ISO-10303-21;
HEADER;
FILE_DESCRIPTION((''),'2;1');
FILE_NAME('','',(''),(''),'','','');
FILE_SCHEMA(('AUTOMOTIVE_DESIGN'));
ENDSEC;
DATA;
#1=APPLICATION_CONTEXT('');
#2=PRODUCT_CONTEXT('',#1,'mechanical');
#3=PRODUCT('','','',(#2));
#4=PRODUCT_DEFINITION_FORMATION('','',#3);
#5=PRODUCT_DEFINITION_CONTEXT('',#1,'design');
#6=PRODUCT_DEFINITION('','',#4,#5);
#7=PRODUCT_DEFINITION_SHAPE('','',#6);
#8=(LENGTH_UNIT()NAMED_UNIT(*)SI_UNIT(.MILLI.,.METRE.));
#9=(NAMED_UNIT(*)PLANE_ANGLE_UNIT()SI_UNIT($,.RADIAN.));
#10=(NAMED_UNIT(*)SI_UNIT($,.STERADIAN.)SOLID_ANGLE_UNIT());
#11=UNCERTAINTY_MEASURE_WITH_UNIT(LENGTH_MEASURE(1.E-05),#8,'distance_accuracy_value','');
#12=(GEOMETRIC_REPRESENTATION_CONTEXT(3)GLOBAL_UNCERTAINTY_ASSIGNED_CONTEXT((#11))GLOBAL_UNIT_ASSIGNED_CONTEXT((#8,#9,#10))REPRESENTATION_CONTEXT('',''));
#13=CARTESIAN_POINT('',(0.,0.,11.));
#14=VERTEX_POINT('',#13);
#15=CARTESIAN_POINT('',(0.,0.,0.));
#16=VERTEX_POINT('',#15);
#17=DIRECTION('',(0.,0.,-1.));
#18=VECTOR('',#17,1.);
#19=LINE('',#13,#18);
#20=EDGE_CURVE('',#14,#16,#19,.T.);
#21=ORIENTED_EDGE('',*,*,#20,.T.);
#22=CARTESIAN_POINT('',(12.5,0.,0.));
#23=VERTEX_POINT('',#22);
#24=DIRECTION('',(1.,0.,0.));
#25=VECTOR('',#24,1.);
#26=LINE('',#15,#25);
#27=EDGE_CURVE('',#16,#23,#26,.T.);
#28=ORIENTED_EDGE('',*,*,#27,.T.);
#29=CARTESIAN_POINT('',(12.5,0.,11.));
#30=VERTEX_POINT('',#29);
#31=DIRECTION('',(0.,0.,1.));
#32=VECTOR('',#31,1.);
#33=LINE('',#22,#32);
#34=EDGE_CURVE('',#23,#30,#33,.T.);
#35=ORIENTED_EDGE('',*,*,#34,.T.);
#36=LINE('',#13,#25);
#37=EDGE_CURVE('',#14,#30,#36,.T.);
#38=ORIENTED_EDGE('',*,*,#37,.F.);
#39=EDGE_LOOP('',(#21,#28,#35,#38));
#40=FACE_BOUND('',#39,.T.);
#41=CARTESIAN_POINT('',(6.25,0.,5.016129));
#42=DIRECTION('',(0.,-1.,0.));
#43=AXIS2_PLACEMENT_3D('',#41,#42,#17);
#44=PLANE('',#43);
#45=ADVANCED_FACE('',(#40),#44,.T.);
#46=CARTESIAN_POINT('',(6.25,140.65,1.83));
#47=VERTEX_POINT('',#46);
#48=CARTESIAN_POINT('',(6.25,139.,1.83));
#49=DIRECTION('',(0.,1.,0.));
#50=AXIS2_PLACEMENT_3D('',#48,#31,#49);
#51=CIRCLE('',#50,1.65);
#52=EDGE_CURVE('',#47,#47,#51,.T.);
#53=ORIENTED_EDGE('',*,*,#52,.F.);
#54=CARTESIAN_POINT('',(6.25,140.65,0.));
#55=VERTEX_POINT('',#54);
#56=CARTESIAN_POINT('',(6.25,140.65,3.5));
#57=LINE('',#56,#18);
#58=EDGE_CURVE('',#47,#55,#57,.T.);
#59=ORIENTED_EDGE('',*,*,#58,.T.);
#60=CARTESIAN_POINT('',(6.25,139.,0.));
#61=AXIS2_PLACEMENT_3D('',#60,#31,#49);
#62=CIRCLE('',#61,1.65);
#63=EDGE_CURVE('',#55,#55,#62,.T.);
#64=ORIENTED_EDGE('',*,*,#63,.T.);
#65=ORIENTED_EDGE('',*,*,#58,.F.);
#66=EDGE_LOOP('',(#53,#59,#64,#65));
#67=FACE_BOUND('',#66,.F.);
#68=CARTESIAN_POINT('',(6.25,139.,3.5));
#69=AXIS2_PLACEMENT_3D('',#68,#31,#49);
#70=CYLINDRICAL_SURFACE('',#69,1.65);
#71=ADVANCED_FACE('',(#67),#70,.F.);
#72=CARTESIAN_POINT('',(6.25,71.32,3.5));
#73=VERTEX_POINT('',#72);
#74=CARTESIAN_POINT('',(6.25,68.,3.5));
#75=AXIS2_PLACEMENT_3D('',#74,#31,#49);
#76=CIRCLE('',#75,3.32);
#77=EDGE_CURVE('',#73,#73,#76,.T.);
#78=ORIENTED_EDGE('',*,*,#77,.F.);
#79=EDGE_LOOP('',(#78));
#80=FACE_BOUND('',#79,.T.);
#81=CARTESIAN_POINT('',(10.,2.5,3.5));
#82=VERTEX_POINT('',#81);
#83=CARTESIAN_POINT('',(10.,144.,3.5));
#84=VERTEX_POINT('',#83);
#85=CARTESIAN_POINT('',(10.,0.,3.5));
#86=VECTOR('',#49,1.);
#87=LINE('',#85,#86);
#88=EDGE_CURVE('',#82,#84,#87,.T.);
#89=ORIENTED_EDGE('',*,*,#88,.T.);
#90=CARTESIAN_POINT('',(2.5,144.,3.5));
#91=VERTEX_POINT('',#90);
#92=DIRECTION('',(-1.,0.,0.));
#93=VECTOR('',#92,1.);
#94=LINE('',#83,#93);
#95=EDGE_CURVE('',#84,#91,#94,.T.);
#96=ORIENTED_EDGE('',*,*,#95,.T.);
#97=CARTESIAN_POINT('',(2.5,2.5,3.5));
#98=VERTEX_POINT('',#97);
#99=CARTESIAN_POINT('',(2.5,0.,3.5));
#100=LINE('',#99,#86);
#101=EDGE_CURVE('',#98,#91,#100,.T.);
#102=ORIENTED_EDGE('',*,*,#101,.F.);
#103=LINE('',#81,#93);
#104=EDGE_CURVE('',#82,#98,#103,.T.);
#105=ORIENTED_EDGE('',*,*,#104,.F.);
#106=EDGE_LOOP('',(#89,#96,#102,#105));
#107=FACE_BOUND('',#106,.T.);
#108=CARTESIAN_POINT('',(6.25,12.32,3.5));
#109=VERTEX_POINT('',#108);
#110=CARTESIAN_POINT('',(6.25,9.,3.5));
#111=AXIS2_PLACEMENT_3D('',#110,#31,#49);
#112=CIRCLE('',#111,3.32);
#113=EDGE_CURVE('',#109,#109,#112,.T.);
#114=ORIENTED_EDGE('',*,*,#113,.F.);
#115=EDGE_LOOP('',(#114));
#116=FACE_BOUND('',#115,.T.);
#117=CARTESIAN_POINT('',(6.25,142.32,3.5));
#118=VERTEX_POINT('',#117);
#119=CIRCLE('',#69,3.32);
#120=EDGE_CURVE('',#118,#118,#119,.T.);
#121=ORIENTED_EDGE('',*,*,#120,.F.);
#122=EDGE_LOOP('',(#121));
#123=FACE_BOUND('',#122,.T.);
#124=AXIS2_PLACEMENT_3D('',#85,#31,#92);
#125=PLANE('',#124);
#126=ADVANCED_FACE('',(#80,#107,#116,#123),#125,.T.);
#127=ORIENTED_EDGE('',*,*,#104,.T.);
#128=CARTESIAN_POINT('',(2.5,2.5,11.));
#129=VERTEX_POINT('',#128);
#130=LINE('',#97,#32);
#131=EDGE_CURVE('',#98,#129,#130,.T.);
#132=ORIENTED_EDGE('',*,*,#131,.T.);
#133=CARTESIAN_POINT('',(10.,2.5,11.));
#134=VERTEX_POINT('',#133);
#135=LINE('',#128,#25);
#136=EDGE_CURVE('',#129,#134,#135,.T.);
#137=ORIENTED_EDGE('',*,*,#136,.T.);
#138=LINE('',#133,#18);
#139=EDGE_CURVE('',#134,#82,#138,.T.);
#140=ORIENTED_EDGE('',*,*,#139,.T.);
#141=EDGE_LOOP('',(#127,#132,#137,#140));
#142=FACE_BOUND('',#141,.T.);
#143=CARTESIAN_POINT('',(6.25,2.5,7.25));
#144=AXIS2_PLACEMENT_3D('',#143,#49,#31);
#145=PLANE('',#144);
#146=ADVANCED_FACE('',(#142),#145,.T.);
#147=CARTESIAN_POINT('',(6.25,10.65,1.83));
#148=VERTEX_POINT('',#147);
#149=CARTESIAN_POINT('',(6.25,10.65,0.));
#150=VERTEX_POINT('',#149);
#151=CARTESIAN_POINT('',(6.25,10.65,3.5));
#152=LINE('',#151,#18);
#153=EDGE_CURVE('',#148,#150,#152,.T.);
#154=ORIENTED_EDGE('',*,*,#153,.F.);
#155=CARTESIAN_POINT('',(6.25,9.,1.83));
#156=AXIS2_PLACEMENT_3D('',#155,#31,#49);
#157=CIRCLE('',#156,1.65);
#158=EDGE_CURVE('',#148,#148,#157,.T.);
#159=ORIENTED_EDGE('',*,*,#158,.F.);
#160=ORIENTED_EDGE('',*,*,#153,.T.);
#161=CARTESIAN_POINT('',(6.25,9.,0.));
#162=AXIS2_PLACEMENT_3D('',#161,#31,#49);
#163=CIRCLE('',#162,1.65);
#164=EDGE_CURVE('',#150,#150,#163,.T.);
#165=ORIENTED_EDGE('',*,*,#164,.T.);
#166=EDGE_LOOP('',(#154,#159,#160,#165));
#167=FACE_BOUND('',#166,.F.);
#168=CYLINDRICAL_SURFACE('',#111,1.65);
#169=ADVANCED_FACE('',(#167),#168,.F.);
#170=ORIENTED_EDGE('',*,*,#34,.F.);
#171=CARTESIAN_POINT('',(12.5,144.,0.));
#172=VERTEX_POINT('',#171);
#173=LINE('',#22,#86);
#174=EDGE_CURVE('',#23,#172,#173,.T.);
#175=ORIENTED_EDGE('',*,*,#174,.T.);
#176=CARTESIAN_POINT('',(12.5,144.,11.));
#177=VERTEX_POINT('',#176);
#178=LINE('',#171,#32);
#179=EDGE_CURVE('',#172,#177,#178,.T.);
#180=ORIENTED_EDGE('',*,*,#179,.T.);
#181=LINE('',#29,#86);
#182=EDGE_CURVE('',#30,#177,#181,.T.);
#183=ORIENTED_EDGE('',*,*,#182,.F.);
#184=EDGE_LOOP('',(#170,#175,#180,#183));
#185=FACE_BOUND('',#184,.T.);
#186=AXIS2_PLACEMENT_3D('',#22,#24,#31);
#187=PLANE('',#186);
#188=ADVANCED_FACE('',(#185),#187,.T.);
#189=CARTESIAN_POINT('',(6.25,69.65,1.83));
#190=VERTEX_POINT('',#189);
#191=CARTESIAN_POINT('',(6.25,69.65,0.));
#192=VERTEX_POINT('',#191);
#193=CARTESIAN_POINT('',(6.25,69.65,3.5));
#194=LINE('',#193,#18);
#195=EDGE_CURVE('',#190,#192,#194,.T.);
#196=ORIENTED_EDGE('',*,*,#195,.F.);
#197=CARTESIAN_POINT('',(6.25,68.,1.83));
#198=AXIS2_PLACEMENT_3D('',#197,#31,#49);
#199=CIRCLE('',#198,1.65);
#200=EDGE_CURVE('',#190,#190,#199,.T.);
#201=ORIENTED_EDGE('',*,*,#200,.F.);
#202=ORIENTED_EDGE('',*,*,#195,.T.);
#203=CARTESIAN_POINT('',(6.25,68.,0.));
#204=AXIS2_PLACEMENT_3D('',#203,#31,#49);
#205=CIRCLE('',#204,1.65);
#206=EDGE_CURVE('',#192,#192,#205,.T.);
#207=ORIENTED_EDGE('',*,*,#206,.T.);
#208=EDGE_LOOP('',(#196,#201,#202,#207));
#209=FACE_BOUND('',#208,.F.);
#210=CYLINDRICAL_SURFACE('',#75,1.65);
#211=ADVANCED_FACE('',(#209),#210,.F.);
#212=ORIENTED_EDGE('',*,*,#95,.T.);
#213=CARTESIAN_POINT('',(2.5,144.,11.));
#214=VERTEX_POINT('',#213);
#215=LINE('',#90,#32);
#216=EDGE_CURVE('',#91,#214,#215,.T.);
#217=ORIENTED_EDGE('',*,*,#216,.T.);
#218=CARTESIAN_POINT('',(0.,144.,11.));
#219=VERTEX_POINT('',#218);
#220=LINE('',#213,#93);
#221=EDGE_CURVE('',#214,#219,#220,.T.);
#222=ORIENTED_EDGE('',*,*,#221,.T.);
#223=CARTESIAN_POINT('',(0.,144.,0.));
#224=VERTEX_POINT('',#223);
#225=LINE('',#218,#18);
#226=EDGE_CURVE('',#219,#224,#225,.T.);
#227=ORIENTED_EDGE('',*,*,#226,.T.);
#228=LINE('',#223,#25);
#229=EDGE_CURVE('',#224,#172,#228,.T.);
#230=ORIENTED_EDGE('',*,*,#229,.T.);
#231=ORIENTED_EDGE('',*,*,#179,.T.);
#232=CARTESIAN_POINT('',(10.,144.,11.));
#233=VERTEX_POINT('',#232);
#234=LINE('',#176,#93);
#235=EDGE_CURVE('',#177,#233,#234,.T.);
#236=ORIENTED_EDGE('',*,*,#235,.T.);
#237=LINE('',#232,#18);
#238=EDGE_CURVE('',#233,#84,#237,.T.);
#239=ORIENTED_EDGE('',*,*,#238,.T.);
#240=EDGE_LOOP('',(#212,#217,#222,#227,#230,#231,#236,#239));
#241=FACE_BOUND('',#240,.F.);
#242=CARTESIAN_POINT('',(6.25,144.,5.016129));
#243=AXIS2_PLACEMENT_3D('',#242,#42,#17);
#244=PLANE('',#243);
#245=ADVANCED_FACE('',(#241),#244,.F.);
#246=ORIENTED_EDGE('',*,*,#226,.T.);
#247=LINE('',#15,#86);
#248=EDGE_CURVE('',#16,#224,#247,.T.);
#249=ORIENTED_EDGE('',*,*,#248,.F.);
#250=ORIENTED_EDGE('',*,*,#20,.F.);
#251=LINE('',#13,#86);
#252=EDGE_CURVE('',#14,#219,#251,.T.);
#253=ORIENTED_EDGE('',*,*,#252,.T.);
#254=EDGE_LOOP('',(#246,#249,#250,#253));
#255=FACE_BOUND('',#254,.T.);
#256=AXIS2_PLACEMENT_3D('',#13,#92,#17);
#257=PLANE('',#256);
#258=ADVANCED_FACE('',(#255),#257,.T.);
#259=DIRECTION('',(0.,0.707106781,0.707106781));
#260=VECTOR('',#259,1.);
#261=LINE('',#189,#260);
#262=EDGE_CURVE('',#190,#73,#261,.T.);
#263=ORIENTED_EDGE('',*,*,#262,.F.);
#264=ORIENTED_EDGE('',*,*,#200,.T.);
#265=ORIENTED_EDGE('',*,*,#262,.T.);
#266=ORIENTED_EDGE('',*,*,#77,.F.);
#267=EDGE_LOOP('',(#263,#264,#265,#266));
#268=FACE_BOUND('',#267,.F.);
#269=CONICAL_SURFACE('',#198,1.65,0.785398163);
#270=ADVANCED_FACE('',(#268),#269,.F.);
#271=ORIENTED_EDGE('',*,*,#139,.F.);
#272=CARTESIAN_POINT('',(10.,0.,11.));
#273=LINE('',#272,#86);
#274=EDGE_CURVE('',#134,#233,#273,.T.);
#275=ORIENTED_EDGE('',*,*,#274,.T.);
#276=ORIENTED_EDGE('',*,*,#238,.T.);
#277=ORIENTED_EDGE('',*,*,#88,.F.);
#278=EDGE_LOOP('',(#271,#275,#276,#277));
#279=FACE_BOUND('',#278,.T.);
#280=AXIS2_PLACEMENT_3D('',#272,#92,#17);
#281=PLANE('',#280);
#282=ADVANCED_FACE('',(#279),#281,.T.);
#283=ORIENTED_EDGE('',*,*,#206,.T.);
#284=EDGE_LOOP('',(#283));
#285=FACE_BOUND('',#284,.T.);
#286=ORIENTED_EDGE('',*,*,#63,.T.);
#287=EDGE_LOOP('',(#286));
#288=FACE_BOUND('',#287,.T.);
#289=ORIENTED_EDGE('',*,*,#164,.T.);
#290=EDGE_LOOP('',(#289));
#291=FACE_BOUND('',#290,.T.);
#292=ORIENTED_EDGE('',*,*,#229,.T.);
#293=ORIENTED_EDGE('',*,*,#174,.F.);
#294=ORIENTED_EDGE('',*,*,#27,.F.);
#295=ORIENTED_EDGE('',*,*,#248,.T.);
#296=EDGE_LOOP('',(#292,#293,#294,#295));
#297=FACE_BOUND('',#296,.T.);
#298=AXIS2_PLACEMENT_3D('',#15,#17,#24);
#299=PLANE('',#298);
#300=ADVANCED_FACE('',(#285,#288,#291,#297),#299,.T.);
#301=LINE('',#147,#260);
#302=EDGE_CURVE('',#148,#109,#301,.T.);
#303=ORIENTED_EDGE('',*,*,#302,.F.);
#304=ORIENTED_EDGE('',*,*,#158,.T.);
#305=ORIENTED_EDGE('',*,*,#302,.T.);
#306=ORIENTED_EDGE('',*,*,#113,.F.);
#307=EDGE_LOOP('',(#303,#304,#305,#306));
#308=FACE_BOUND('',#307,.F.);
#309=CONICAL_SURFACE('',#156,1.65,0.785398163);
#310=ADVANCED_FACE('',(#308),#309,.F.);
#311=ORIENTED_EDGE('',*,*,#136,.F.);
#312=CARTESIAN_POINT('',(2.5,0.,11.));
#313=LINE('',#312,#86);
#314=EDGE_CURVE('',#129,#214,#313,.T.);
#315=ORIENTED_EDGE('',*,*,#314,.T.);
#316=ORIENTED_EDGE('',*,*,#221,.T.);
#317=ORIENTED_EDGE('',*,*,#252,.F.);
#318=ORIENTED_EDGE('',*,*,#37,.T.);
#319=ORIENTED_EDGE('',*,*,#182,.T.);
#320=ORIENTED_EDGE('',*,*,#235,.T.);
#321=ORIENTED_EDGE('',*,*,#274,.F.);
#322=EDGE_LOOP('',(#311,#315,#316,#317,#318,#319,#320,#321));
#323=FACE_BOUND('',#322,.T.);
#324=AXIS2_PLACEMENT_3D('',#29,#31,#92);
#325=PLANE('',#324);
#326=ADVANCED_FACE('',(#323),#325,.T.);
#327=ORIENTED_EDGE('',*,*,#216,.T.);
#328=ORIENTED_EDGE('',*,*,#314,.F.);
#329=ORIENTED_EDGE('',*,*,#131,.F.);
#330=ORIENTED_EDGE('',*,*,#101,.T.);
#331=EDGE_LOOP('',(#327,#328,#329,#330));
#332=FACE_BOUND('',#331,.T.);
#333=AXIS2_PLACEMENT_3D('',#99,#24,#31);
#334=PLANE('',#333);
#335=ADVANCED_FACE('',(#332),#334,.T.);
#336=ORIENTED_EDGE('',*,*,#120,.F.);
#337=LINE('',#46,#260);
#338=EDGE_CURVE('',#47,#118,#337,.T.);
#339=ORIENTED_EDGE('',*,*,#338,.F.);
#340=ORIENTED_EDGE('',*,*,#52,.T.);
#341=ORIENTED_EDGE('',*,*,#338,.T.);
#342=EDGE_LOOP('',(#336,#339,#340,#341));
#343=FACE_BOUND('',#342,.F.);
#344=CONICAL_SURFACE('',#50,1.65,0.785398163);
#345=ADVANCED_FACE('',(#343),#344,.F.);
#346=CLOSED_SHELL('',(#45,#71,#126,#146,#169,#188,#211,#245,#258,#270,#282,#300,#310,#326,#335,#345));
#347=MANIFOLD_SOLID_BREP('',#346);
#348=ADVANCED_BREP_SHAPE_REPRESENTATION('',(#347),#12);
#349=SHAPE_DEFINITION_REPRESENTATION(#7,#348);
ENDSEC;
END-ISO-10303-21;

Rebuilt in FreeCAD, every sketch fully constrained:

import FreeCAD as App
import Part
import Sketcher


def edges_at(feature, points):
    """Names of the edges that pass closest to the given points."""
    edges = feature.Shape.Edges
    near = lambda p: min(range(len(edges)), key=lambda i: edges[i].distToShape(Part.Vertex(*p))[0])
    return sorted({f"Edge{near(p) + 1}" for p in points})


def add_polygon(sketch, points):
    """Adds a closed chain of lines whose ends are joined by coincident constraints."""
    first, n = sketch.GeometryCount, len(points)
    for a, b in zip(points, points[1:] + points[:1]):
        sketch.addGeometry(Part.LineSegment(App.Vector(*a, 0), App.Vector(*b, 0)), False)
    for i in range(n):
        sketch.addConstraint(Sketcher.Constraint("Coincident", first + i, 2, first + (i + 1) % n, 1))

doc = App.newDocument("Part")
params = doc.addObject("Spreadsheet::Sheet", "Params")
for row, (alias, value) in enumerate([
    ("sketch1_height", "11 mm"),
    ("sketch1_width", "12.5 mm"),
    ("sketch1_width2", "2.5 mm"),
    ("pad1_length", "144 mm"),
    ("sketch2_width", "7.5 mm"),
    ("pad2_length", "2.5 mm"),
    ("sketch3_diameter", "3.3 mm"),
    ("chamfer_size", "1.67 mm"),
], start=1):
    params.set(f"A{row}", alias)
    params.set(f"B{row}", "=" + value)
    params.setAlias(f"B{row}", alias)

body = doc.addObject("PartDesign::Body", "Body")

sketch1 = body.newObject("Sketcher::SketchObject", "Sketch")
sketch1.AttachmentSupport = (doc.getObject("XZ_Plane"), [""])
sketch1.MapMode = "FlatFace"
add_polygon(sketch1, [(0, 0), (12.5, 0), (12.5, 11), (10, 11), (10, 3.5), (2.5, 3.5), (2.5, 11), (0, 11)])
sketch1.addConstraint(Sketcher.Constraint("Horizontal", 0))
sketch1.addConstraint(Sketcher.Constraint("Vertical", 1))
sketch1.addConstraint(Sketcher.Constraint("Horizontal", 2))
sketch1.addConstraint(Sketcher.Constraint("Vertical", 3))
sketch1.addConstraint(Sketcher.Constraint("Horizontal", 4))
sketch1.addConstraint(Sketcher.Constraint("Vertical", 5))
sketch1.addConstraint(Sketcher.Constraint("Horizontal", 6))
sketch1.addConstraint(Sketcher.Constraint("Vertical", 7))
sketch1.addConstraint(Sketcher.Constraint("Coincident", 7, 2, -1, 1))
sketch1.addConstraint(Sketcher.Constraint("Horizontal", 2, 2, 5, 2))
sketch1.addConstraint(Sketcher.Constraint("Equal", 2, 6))
sketch1.addConstraint(Sketcher.Constraint("Equal", 4, 3))
sketch1.addConstraint(Sketcher.Constraint("DistanceY", 1, 1, 1, 2, 11.0))
sketch1.addConstraint(Sketcher.Constraint("DistanceX", 0, 1, 0, 2, 12.5))
sketch1.addConstraint(Sketcher.Constraint("DistanceX", 2, 2, 2, 1, 2.5))
sketch1.setExpression("Constraints[20]", "Params.sketch1_height")
sketch1.setExpression("Constraints[21]", "Params.sketch1_width")
sketch1.setExpression("Constraints[22]", "Params.sketch1_width2")
pad1 = body.newObject("PartDesign::Pad", "Pad")
pad1.Profile = sketch1
pad1.setExpression("Length", "Params.pad1_length")
pad1.Reversed = True

sketch2 = body.newObject("Sketcher::SketchObject", "Sketch001")
sketch2.AttachmentSupport = (doc.getObject("XZ_Plane"), [""])
sketch2.MapMode = "FlatFace"
add_polygon(sketch2, [(10, 11), (2, 11), (2, 4), (10, 4)])
sketch2.addConstraint(Sketcher.Constraint("Horizontal", 0))
sketch2.addConstraint(Sketcher.Constraint("Vertical", 1))
sketch2.addConstraint(Sketcher.Constraint("Horizontal", 2))
sketch2.addConstraint(Sketcher.Constraint("Vertical", 3))
sketch2.addConstraint(Sketcher.Constraint("Equal", 2, 1))
sketch2.addConstraint(Sketcher.Constraint("DistanceX", 0, 2, 0, 1, 7.5))
sketch2.addConstraint(Sketcher.Constraint("DistanceY", -1, 1, 0, 2, 11.0))
sketch2.addConstraint(Sketcher.Constraint("DistanceX", -1, 1, 2, 2, 10.0))
sketch2.setExpression("Constraints[9]", "Params.sketch2_width")
pad2 = body.newObject("PartDesign::Pad", "Pad001")
pad2.Profile = sketch2
pad2.setExpression("Length", "Params.pad2_length")
pad2.Reversed = True

sketch3 = body.newObject("Sketcher::SketchObject", "Sketch002")
sketch3.AttachmentSupport = (doc.getObject("XY_Plane"), [""])
sketch3.MapMode = "FlatFace"
sketch3.AttachmentOffset = App.Placement(App.Vector(0, 0, 3.5), App.Rotation())
sketch3.addGeometry(Part.Circle(App.Vector(6.2, 9, 0), App.Vector(0, 0, 1), 1.6), False)
sketch3.addGeometry(Part.Circle(App.Vector(6.2, 68, 0), App.Vector(0, 0, 1), 1.6), False)
sketch3.addGeometry(Part.Circle(App.Vector(6.2, 139, 0), App.Vector(0, 0, 1), 1.6), False)
sketch3.addConstraint(Sketcher.Constraint("Equal", 0, 1))
sketch3.addConstraint(Sketcher.Constraint("Equal", 1, 2))
sketch3.addConstraint(Sketcher.Constraint("Vertical", 0, 3, 1, 3))
sketch3.addConstraint(Sketcher.Constraint("Vertical", 1, 3, 2, 3))
sketch3.addConstraint(Sketcher.Constraint("Diameter", 0, 3.3))
sketch3.addConstraint(Sketcher.Constraint("DistanceY", -1, 1, 0, 3, 9.0))
sketch3.addConstraint(Sketcher.Constraint("DistanceY", -1, 1, 1, 3, 68.0))
sketch3.addConstraint(Sketcher.Constraint("DistanceY", -1, 1, 2, 3, 139.0))
sketch3.addConstraint(Sketcher.Constraint("DistanceX", -1, 1, 0, 3, 6.25))
sketch3.setExpression("Constraints[4]", "Params.sketch3_diameter")
pocket1 = body.newObject("PartDesign::Pocket", "Pocket")
pocket1.Profile = sketch3
pocket1.Type = "ThroughAll"
doc.recompute()

chamfer = body.newObject("PartDesign::Chamfer", "Chamfer")
chamfer.Base = (pocket1, edges_at(pocket1, [(6.25, 66.35, 3.5), (6.25, 7.35, 3.5), (6.25, 137.35, 3.5)]))
chamfer.setExpression("Size", "Params.chamfer_size")

doc.recompute()
